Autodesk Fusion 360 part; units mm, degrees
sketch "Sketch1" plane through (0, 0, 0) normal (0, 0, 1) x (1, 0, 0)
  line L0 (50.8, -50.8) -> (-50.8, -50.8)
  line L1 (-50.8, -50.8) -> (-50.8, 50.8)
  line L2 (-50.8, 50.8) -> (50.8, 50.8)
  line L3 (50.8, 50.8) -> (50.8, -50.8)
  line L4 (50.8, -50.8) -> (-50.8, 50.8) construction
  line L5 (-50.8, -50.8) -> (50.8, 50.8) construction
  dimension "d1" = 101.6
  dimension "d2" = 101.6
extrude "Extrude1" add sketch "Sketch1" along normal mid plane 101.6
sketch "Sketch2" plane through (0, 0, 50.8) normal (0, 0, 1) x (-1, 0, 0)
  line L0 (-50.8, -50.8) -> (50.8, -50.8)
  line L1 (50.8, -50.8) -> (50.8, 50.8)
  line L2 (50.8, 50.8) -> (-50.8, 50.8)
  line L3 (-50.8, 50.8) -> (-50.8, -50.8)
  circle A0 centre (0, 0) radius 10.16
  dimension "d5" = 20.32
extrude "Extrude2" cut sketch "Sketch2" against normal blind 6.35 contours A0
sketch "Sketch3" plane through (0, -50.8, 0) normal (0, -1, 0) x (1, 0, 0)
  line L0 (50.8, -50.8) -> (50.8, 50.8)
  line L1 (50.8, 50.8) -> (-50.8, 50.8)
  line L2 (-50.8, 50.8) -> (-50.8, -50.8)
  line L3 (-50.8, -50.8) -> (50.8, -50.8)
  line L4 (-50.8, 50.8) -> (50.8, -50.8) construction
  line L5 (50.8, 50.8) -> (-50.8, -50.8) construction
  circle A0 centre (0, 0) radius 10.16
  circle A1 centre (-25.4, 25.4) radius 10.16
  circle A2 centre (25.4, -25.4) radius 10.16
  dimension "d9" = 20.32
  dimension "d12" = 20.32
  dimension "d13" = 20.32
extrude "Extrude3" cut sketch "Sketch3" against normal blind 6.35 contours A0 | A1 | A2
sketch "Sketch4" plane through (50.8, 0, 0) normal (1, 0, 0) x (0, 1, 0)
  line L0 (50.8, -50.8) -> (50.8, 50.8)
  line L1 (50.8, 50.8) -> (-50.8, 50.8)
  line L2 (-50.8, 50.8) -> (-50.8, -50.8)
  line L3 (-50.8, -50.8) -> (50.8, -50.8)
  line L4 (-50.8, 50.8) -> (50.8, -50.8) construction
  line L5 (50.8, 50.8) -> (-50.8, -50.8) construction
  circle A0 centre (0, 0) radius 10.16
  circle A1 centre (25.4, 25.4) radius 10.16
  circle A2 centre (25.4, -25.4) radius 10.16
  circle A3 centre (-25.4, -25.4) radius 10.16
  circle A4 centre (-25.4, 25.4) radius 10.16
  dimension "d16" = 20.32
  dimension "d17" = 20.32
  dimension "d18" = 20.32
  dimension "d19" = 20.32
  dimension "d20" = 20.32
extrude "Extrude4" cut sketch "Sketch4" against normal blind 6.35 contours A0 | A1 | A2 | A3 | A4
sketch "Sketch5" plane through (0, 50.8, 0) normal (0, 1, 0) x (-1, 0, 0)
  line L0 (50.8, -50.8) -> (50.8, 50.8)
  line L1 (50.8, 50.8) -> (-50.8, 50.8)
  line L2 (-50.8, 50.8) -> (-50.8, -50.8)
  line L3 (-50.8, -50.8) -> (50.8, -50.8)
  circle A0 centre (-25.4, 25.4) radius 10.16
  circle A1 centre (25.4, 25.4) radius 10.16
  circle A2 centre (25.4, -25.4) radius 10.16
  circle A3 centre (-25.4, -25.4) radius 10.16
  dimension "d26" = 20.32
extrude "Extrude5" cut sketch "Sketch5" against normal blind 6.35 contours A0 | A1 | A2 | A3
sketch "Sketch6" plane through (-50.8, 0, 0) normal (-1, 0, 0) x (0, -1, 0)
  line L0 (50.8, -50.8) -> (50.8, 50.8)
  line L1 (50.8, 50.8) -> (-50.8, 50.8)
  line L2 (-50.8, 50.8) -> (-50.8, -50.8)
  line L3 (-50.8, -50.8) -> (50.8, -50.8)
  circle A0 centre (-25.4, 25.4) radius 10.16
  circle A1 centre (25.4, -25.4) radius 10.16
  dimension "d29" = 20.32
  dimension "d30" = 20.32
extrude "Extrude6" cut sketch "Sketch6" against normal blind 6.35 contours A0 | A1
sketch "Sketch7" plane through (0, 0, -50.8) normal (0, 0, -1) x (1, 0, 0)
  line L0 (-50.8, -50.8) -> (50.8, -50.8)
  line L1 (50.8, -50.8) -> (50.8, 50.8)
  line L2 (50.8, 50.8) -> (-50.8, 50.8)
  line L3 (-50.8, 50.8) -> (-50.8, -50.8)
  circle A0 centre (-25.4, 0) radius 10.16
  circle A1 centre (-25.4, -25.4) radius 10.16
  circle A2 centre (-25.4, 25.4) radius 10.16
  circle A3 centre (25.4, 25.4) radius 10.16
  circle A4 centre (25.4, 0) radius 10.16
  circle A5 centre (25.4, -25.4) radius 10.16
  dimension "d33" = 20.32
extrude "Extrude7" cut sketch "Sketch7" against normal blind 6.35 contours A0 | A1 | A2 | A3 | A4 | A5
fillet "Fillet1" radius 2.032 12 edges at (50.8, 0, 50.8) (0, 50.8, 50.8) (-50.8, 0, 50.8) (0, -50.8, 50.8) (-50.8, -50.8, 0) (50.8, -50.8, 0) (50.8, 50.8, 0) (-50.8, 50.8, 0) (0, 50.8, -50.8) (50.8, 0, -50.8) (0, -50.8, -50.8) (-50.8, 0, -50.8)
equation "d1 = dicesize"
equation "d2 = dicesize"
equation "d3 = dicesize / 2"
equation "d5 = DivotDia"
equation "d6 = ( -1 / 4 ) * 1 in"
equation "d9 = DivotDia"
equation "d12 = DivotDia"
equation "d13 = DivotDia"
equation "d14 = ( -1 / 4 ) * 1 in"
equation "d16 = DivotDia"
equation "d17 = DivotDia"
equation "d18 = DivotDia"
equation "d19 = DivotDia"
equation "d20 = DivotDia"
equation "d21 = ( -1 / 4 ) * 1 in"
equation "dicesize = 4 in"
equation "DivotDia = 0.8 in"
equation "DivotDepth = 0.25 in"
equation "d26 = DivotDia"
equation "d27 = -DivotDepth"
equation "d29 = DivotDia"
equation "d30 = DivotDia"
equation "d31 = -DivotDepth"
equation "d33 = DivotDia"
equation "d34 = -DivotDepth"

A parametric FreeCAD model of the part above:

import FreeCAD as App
import Part
import Sketcher
from FreeCAD import Vector
Q = App.Units.Quantity


def edges_at(feature, points):
    """Names of the edges that pass closest to the given points."""
    edges = feature.Shape.Edges
    near = lambda p: min(range(len(edges)), key=lambda i: edges[i].distToShape(Part.Vertex(*p))[0])
    return sorted({f"Edge{near(p) + 1}" for p in points})


def add_polygon(sketch, points):
    """Adds a closed chain of lines whose ends are joined by coincident constraints."""
    first, n = sketch.GeometryCount, len(points)
    for a, b in zip(points, points[1:] + points[:1]):
        sketch.addGeometry(Part.LineSegment(App.Vector(*a, 0), App.Vector(*b, 0)), False)
    for i in range(n):
        sketch.addConstraint(Sketcher.Constraint("Coincident", first + i, 2, first + (i + 1) % n, 1))

doc = App.newDocument("Part")
body = doc.addObject("PartDesign::Body", "Body")

# Sketch on XY plane
sketch1 = body.newObject("Sketcher::SketchObject", "Sketch")
sketch1.AttachmentSupport = (doc.getObject("XY_Plane"), [""])
sketch1.MapMode = "FlatFace"
add_polygon(sketch1, [(-51, -51), (51, -51), (51, 51), (-51, 51)])  # lines 0-3
sketch1.addConstraint(Sketcher.Constraint("Horizontal", 0))
sketch1.addConstraint(Sketcher.Constraint("Vertical", 1))
sketch1.addConstraint(Sketcher.Constraint("Horizontal", 2))
sketch1.addConstraint(Sketcher.Constraint("Vertical", 3))
sketch1.addConstraint(Sketcher.Constraint("Symmetric", 0, 2, 2, 2, -1, 1))
sketch1.addConstraint(Sketcher.Constraint("Equal", 2, 1))
sketch1.addConstraint(Sketcher.Constraint("DistanceX", 0, 1, 0, 2, Q("4 in")))
pad1 = body.newObject("PartDesign::Pad", "Pad")
pad1.Profile = sketch1
pad1.Length = Q("4 in")
pad1.Midplane = True

# Sketch on XY plane
sketch2 = body.newObject("Sketcher::SketchObject", "Sketch001")
sketch2.AttachmentSupport = (doc.getObject("XY_Plane"), [""])
sketch2.MapMode = "FlatFace"
sketch2.AttachmentOffset = App.Placement(Vector(0, 0, 2 * 25.4), App.Rotation())
sketch2.addGeometry(Part.Circle(Vector(0, 0, 0), Vector(0, 0, 1), 10), False)
sketch2.addConstraint(Sketcher.Constraint("Coincident", 0, 3, -1, 1))
sketch2.addConstraint(Sketcher.Constraint("Diameter", 0, Q("0.8 in")))
pocket1 = body.newObject("PartDesign::Pocket", "Pocket")
pocket1.Profile = sketch2
pocket1.Length = Q("0.25 in")

# Sketch on XZ plane
sketch3 = body.newObject("Sketcher::SketchObject", "Sketch002")
sketch3.AttachmentSupport = (doc.getObject("XZ_Plane"), [""])
sketch3.MapMode = "FlatFace"
sketch3.AttachmentOffset = App.Placement(Vector(0, 0, 2 * 25.4), App.Rotation())
sketch3.addGeometry(Part.Circle(Vector(0, 0, 0), Vector(0, 0, 1), 10), False)
sketch3.addGeometry(Part.Circle(Vector(-25, 25, 0), Vector(0, 0, 1), 10), False)
sketch3.addGeometry(Part.Circle(Vector(25, -25, 0), Vector(0, 0, 1), 10), False)
sketch3.addConstraint(Sketcher.Constraint("Coincident", 0, 3, -1, 1))
sketch3.addConstraint(Sketcher.Constraint("Equal", 0, 1))
sketch3.addConstraint(Sketcher.Constraint("Equal", 1, 2))
sketch3.addConstraint(Sketcher.Constraint("Symmetric", 1, 3, 2, 3, -1, 1))
sketch3.addConstraint(Sketcher.Constraint("Diameter", 0, Q("0.8 in")))
sketch3.addConstraint(Sketcher.Constraint("DistanceX", 1, 3, -1, 1, Q("1 in")))
sketch3.addConstraint(Sketcher.Constraint("DistanceY", -1, 1, 1, 3, Q("1 in")))
pocket2 = body.newObject("PartDesign::Pocket", "Pocket001")
pocket2.Profile = sketch3
pocket2.Length = Q("0.25 in")

# Sketch on YZ plane
sketch4 = body.newObject("Sketcher::SketchObject", "Sketch003")
sketch4.AttachmentSupport = (doc.getObject("YZ_Plane"), [""])
sketch4.MapMode = "FlatFace"
sketch4.AttachmentOffset = App.Placement(Vector(0, 0, 2 * 25.4), App.Rotation())
sketch4.addGeometry(Part.Circle(Vector(0, 0, 0), Vector(0, 0, 1), 10), False)
sketch4.addGeometry(Part.Circle(Vector(25, 25, 0), Vector(0, 0, 1), 10), False)
sketch4.addGeometry(Part.Circle(Vector(25, -25, 0), Vector(0, 0, 1), 10), False)
sketch4.addGeometry(Part.Circle(Vector(-25, -25, 0), Vector(0, 0, 1), 10), False)
sketch4.addGeometry(Part.Circle(Vector(-25, 25, 0), Vector(0, 0, 1), 10), False)
sketch4.addConstraint(Sketcher.Constraint("Coincident", 0, 3, -1, 1))
sketch4.addConstraint(Sketcher.Constraint("Equal", 0, 1))
sketch4.addConstraint(Sketcher.Constraint("Equal", 1, 2))
sketch4.addConstraint(Sketcher.Constraint("Equal", 2, 3))
sketch4.addConstraint(Sketcher.Constraint("Equal", 3, 4))
sketch4.addConstraint(Sketcher.Constraint("Symmetric", 1, 3, 3, 3, -1, 1))
sketch4.addConstraint(Sketcher.Constraint("Symmetric", 2, 3, 4, 3, -1, 1))
sketch4.addConstraint(Sketcher.Constraint("Symmetric", 2, 3, 3, 3, -2))
sketch4.addConstraint(Sketcher.Constraint("Diameter", 0, Q("0.8 in")))
sketch4.addConstraint(Sketcher.Constraint("DistanceX", -1, 1, 1, 3, Q("1 in")))
sketch4.addConstraint(Sketcher.Constraint("DistanceY", -1, 1, 1, 3, Q("1 in")))
pocket3 = body.newObject("PartDesign::Pocket", "Pocket002")
pocket3.Profile = sketch4
pocket3.Length = Q("0.25 in")

# Sketch on XZ plane
sketch5 = body.newObject("Sketcher::SketchObject", "Sketch004")
sketch5.AttachmentSupport = (doc.getObject("XZ_Plane"), [""])
sketch5.MapMode = "FlatFace"
sketch5.AttachmentOffset = App.Placement(Vector(0, 0, -2 * 25.4), App.Rotation())
sketch5.addGeometry(Part.Circle(Vector(25, 25, 0), Vector(0, 0, 1), 10), False)
sketch5.addGeometry(Part.Circle(Vector(-25, 25, 0), Vector(0, 0, 1), 10), False)
sketch5.addGeometry(Part.Circle(Vector(-25, -25, 0), Vector(0, 0, 1), 10), False)
sketch5.addGeometry(Part.Circle(Vector(25, -25, 0), Vector(0, 0, 1), 10), False)
sketch5.addConstraint(Sketcher.Constraint("Equal", 0, 1))
sketch5.addConstraint(Sketcher.Constraint("Equal", 1, 2))
sketch5.addConstraint(Sketcher.Constraint("Equal", 2, 3))
sketch5.addConstraint(Sketcher.Constraint("Symmetric", 0, 3, 2, 3, -1, 1))
sketch5.addConstraint(Sketcher.Constraint("Symmetric", 1, 3, 3, 3, -1, 1))
sketch5.addConstraint(Sketcher.Constraint("Symmetric", 0, 3, 1, 3, -2))
sketch5.addConstraint(Sketcher.Constraint("Diameter", 0, Q("0.8 in")))
sketch5.addConstraint(Sketcher.Constraint("DistanceX", -1, 1, 0, 3, Q("1 in")))
sketch5.addConstraint(Sketcher.Constraint("DistanceY", -1, 1, 0, 3, Q("1 in")))
pocket4 = body.newObject("PartDesign::Pocket", "Pocket003")
pocket4.Profile = sketch5
pocket4.Length = Q("0.25 in")
pocket4.Reversed = True

# Sketch on YZ plane
sketch6 = body.newObject("Sketcher::SketchObject", "Sketch005")
sketch6.AttachmentSupport = (doc.getObject("YZ_Plane"), [""])
sketch6.MapMode = "FlatFace"
sketch6.AttachmentOffset = App.Placement(Vector(0, 0, -2 * 25.4), App.Rotation())
sketch6.addGeometry(Part.Circle(Vector(25, 25, 0), Vector(0, 0, 1), 10), False)
sketch6.addGeometry(Part.Circle(Vector(-25, -25, 0), Vector(0, 0, 1), 10), False)
sketch6.addConstraint(Sketcher.Constraint("Equal", 0, 1))
sketch6.addConstraint(Sketcher.Constraint("Symmetric", 0, 3, 1, 3, -1, 1))
sketch6.addConstraint(Sketcher.Constraint("Diameter", 0, Q("0.8 in")))
sketch6.addConstraint(Sketcher.Constraint("DistanceX", -1, 1, 0, 3, Q("1 in")))
sketch6.addConstraint(Sketcher.Constraint("DistanceY", -1, 1, 0, 3, Q("1 in")))
pocket5 = body.newObject("PartDesign::Pocket", "Pocket004")
pocket5.Profile = sketch6
pocket5.Length = Q("0.25 in")
pocket5.Reversed = True

# Sketch on XY plane
sketch7 = body.newObject("Sketcher::SketchObject", "Sketch006")
sketch7.AttachmentSupport = (doc.getObject("XY_Plane"), [""])
sketch7.MapMode = "FlatFace"
sketch7.AttachmentOffset = App.Placement(Vector(0, 0, -2 * 25.4), App.Rotation())
sketch7.addGeometry(Part.Circle(Vector(-25, 0, 0), Vector(0, 0, 1), 10), False)
sketch7.addGeometry(Part.Circle(Vector(-25, 25, 0), Vector(0, 0, 1), 10), False)
sketch7.addGeometry(Part.Circle(Vector(-25, -25, 0), Vector(0, 0, 1), 10), False)
sketch7.addGeometry(Part.Circle(Vector(25, -25, 0), Vector(0, 0, 1), 10), False)
sketch7.addGeometry(Part.Circle(Vector(25, 0, 0), Vector(0, 0, 1), 10), False)
sketch7.addGeometry(Part.Circle(Vector(25, 25, 0), Vector(0, 0, 1), 10), False)
sketch7.addConstraint(Sketcher.Constraint("Equal", 0, 1))
sketch7.addConstraint(Sketcher.Constraint("Equal", 1, 2))
sketch7.addConstraint(Sketcher.Constraint("Equal", 2, 3))
sketch7.addConstraint(Sketcher.Constraint("Equal", 3, 4))
sketch7.addConstraint(Sketcher.Constraint("Equal", 4, 5))
sketch7.addConstraint(Sketcher.Constraint("Symmetric", 1, 3, 3, 3, -1, 1))
sketch7.addConstraint(Sketcher.Constraint("Symmetric", 0, 3, 4, 3, -1, 1))
sketch7.addConstraint(Sketcher.Constraint("Symmetric", 2, 3, 5, 3, -1, 1))
sketch7.addConstraint(Sketcher.Constraint("Symmetric", 2, 3, 3, 3, -2))
sketch7.addConstraint(Sketcher.Constraint("PointOnObject", 0, 3, -1))
sketch7.addConstraint(Sketcher.Constraint("Vertical", 0, 3, 1, 3))
sketch7.addConstraint(Sketcher.Constraint("Diameter", 0, Q("0.8 in")))
sketch7.addConstraint(Sketcher.Constraint("DistanceX", 0, 3, -1, 1, Q("1 in")))
sketch7.addConstraint(Sketcher.Constraint("DistanceY", -1, 1, 1, 3, Q("1 in")))
pocket6 = body.newObject("PartDesign::Pocket", "Pocket005")
pocket6.Profile = sketch7
pocket6.Length = Q("0.25 in")
pocket6.Reversed = True
doc.recompute()

fillet = body.newObject("PartDesign::Fillet", "Fillet")
fillet.Base = (pocket6, edges_at(pocket6, [
    (50.8, 0, 50.8),
    (0, 50.8, 50.8),
    (-50.8, 0, 50.8),
    (0, -50.8, 50.8),
    (-50.8, -50.8, 0),
    (50.8, -50.8, 0),
    (50.8, 50.8, 0),
    (-50.8, 50.8, 0),
    (0, 50.8, -50.8),
    (50.8, 0, -50.8),
    (0, -50.8, -50.8),
    (-50.8, 0, -50.8),
]))
fillet.Radius = Q("0.08 in")

doc.recompute()
